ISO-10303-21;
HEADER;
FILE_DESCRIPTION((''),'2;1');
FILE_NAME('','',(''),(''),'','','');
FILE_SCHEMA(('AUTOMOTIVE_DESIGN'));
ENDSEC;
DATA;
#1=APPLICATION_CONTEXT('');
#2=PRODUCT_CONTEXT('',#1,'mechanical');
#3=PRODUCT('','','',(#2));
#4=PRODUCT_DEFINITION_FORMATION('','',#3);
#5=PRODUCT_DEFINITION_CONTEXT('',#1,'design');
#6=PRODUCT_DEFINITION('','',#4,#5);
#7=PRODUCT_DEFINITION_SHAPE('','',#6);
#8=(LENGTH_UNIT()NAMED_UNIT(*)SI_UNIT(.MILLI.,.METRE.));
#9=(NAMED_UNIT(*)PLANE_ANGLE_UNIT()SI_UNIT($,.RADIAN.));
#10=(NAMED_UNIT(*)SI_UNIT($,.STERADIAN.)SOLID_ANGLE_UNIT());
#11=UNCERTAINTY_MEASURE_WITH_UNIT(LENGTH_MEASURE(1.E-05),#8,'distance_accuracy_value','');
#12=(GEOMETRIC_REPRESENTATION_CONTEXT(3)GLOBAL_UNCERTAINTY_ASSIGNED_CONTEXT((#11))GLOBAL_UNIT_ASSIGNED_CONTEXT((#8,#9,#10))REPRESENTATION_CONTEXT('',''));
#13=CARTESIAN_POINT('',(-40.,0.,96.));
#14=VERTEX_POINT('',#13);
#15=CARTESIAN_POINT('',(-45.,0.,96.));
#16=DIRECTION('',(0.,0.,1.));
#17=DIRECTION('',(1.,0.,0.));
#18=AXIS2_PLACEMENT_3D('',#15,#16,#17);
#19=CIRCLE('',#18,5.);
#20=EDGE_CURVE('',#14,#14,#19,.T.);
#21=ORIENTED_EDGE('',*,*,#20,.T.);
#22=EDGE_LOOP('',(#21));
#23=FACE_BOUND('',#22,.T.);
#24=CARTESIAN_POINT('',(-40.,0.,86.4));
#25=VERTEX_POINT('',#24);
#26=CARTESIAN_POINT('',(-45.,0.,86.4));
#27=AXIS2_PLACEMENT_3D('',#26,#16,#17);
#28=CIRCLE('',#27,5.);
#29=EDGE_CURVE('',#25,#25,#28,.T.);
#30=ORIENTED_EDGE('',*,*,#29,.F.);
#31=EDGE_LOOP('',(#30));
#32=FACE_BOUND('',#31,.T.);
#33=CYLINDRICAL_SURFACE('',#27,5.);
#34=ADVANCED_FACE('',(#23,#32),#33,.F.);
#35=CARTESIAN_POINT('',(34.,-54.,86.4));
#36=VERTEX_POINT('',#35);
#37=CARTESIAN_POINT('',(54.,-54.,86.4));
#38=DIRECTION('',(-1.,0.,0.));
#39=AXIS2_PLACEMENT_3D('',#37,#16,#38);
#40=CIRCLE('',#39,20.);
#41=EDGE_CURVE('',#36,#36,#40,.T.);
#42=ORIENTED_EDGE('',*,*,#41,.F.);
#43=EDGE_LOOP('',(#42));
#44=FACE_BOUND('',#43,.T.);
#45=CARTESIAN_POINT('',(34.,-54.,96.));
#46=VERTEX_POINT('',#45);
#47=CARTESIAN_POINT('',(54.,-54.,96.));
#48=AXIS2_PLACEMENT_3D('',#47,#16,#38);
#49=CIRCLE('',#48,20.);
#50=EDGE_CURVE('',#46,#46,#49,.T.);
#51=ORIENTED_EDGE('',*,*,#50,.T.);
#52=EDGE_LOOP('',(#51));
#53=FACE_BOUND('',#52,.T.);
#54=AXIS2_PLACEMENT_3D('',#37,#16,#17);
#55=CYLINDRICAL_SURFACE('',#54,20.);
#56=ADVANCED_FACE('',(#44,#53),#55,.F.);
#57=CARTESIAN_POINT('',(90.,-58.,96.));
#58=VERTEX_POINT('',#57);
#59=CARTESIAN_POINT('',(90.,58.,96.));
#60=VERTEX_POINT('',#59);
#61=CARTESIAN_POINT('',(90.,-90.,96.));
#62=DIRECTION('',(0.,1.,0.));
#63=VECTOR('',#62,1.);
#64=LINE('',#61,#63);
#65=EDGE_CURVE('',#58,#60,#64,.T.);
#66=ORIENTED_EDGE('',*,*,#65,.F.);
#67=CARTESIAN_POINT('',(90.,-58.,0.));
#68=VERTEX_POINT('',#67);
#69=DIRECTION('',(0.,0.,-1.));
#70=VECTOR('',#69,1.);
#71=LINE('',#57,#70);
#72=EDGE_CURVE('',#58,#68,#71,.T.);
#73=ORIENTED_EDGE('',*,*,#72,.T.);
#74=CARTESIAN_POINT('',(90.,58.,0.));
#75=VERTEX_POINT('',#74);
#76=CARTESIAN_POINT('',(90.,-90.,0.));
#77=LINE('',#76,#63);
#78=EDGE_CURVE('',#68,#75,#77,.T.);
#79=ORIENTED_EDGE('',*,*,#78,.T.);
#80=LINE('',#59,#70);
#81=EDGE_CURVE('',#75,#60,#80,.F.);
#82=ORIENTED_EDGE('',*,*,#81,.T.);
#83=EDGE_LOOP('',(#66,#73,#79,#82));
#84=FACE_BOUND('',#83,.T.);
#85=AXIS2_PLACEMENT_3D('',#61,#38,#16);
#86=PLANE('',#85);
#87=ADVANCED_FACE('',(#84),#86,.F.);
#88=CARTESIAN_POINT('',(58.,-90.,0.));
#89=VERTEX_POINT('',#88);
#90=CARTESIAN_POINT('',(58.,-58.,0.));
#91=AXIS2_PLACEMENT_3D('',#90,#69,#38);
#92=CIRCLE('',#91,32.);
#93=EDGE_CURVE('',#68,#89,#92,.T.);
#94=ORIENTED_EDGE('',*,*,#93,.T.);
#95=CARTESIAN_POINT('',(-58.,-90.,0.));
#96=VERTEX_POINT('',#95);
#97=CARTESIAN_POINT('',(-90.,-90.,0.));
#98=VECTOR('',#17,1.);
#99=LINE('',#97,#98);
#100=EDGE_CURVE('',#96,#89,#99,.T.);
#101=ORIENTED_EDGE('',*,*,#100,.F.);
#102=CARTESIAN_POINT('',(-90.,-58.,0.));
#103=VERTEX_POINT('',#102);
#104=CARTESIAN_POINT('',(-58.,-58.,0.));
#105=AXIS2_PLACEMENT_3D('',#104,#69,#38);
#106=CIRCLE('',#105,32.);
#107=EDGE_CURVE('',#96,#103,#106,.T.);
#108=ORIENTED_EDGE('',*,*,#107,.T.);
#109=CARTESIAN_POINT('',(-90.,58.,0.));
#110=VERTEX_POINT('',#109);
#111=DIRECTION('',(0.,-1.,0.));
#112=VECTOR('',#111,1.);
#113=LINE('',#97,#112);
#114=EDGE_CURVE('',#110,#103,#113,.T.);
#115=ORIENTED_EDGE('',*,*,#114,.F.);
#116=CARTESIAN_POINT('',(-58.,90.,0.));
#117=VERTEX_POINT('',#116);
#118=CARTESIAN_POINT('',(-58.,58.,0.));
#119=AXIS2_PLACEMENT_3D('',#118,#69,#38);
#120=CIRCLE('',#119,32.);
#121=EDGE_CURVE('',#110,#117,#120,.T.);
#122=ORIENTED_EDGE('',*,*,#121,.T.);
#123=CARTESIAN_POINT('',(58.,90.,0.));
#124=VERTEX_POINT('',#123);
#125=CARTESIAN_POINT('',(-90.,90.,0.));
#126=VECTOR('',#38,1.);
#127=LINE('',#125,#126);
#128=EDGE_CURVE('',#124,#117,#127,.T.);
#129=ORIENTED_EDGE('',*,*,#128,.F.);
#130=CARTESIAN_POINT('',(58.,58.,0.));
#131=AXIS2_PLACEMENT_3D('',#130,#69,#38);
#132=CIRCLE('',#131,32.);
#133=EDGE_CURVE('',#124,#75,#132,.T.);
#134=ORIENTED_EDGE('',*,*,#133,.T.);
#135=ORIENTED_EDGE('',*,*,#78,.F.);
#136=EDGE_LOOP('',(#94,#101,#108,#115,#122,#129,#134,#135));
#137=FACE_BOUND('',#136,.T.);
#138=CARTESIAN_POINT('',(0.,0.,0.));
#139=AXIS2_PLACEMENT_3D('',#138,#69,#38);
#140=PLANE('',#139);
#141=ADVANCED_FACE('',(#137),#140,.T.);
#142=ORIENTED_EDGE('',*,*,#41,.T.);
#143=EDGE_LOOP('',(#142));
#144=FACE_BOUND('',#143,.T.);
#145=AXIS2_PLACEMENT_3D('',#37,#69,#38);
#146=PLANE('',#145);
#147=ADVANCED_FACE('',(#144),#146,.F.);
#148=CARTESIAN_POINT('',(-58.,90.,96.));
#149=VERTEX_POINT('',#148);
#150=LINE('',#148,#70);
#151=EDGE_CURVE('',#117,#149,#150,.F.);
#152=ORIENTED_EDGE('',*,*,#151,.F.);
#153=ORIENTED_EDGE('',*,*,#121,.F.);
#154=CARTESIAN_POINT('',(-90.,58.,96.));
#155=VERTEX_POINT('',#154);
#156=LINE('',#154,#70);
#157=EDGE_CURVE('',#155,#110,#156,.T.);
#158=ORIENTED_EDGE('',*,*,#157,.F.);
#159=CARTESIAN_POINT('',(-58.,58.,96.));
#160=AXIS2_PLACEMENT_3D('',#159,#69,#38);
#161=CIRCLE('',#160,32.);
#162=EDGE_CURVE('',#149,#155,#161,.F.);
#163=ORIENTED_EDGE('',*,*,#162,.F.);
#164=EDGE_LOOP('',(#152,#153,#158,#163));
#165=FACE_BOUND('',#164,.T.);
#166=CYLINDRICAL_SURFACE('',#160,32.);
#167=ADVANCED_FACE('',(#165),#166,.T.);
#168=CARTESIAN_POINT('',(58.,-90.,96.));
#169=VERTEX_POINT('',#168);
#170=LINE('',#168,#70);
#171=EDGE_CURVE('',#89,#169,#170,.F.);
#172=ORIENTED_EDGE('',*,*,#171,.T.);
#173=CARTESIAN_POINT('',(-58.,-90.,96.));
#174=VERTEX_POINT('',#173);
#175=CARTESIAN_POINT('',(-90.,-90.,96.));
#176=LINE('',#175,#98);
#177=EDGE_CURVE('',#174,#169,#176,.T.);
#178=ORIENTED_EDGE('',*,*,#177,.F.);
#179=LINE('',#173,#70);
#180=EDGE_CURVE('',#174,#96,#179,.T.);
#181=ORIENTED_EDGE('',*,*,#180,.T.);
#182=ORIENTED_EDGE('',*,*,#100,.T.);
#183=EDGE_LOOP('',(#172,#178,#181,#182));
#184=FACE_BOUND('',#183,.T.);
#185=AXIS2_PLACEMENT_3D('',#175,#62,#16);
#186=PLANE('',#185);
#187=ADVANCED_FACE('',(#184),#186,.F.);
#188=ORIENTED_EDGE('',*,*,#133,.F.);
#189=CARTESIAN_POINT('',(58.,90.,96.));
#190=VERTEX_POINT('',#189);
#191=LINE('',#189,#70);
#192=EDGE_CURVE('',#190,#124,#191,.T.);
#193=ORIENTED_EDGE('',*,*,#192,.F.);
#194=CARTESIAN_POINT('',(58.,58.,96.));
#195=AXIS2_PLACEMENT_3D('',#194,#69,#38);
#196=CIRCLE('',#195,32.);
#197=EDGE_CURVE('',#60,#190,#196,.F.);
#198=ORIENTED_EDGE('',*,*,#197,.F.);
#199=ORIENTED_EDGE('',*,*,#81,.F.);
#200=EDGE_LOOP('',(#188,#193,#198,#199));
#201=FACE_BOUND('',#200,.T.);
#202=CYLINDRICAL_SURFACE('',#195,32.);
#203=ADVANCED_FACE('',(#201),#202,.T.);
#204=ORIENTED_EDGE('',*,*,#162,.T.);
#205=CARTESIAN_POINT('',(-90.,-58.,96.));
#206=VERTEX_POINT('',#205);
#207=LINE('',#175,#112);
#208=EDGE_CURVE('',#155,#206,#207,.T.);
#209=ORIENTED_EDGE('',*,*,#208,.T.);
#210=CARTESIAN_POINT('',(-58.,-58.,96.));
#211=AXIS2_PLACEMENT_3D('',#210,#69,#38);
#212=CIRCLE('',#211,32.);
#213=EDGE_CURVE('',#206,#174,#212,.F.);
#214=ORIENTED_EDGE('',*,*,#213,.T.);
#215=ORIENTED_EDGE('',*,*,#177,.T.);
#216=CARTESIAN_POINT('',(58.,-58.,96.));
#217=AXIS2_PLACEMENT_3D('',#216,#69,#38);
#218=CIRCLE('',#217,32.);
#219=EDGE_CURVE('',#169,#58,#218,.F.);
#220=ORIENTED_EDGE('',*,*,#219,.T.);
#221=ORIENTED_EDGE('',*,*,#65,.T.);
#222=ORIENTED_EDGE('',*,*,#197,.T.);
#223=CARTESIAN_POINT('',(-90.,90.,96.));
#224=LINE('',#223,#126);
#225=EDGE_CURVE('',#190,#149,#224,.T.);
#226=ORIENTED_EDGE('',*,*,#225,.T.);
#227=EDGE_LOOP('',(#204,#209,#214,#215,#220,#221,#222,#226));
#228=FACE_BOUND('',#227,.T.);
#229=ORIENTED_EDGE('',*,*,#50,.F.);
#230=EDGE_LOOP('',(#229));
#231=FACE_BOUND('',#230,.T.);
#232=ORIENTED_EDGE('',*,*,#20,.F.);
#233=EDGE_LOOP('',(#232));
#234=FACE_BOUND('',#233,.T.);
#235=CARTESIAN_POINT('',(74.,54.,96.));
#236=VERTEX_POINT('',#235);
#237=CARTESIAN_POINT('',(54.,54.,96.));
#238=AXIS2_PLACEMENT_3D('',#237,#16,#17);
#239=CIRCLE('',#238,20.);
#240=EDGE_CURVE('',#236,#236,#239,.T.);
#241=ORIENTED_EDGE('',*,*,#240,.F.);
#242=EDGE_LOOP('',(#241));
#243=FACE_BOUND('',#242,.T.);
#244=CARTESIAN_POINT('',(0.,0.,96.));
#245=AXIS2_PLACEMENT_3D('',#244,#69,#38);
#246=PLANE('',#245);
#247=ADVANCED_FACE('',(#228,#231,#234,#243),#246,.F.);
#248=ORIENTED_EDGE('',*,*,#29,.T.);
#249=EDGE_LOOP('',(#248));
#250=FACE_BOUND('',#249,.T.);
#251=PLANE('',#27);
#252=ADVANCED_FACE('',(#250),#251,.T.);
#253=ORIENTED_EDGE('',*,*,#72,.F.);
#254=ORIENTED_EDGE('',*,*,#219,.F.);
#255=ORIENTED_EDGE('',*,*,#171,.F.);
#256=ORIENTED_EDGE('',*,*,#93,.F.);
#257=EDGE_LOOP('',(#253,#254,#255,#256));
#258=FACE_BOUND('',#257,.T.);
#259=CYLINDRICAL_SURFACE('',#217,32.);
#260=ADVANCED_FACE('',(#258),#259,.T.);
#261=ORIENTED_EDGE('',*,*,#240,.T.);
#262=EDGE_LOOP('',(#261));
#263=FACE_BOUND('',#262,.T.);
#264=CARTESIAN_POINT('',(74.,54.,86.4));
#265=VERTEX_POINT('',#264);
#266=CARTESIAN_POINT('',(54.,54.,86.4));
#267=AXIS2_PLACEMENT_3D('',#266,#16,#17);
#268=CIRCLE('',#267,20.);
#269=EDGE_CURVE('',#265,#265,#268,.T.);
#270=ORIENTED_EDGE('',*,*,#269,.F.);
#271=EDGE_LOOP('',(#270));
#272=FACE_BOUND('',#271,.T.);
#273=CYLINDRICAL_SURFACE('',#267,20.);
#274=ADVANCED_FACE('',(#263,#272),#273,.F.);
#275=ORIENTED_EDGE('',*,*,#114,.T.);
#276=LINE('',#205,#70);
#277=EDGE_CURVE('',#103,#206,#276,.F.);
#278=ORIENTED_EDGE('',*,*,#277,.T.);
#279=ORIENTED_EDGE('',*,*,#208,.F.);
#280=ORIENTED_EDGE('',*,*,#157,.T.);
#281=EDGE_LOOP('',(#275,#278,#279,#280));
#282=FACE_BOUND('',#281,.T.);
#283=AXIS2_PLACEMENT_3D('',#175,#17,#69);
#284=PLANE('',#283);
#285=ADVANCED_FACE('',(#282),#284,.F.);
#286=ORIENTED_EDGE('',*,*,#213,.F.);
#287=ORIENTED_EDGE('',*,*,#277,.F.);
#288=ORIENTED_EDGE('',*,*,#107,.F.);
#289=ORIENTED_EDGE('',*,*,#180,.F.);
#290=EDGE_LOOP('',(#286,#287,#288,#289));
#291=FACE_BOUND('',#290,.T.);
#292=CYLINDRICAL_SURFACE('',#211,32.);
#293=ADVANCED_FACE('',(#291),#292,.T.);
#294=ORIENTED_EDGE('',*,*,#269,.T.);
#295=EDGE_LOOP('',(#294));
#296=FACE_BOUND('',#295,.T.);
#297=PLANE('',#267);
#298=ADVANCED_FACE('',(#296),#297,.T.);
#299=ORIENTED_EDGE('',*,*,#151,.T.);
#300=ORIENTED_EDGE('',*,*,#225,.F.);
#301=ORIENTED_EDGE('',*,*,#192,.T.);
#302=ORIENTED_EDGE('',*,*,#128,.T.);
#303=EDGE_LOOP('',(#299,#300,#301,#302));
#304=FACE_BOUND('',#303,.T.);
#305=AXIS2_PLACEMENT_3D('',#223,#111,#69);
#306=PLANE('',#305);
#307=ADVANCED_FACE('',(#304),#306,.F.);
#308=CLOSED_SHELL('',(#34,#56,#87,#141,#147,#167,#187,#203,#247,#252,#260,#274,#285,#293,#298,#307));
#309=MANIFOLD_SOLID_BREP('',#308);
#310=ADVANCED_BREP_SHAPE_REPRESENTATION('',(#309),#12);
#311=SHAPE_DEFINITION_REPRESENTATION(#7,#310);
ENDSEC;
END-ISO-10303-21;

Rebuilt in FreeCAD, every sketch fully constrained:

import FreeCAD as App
import Part
import Sketcher
Q = App.Units.Quantity


def edges_at(feature, points):
    """Names of the edges that pass closest to the given points."""
    edges = feature.Shape.Edges
    near = lambda p: min(range(len(edges)), key=lambda i: edges[i].distToShape(Part.Vertex(*p))[0])
    return sorted({f"Edge{near(p) + 1}" for p in points})


def add_polygon(sketch, points):
    """Adds a closed chain of lines whose ends are joined by coincident constraints."""
    first, n = sketch.GeometryCount, len(points)
    for a, b in zip(points, points[1:] + points[:1]):
        sketch.addGeometry(Part.LineSegment(App.Vector(*a, 0), App.Vector(*b, 0)), False)
    for i in range(n):
        sketch.addConstraint(Sketcher.Constraint("Coincident", first + i, 2, first + (i + 1) % n, 1))

doc = App.newDocument("Part")
params = doc.addObject("Spreadsheet::Sheet", "Params")
for row, (alias, value) in enumerate([
    ("sketch1_width", "180 mm"),
    ("pad1_length", "96 mm"),
    ("fillet_radius", "32 mm"),
    ("sketch2_diameter", "40 mm"),
    ("sketch2_diameter2", "10 mm"),
    ("pocket1_length", "9.6 mm"),
], start=1):
    params.set(f"A{row}", alias)
    params.set(f"B{row}", "=" + value)
    params.setAlias(f"B{row}", alias)

body = doc.addObject("PartDesign::Body", "Body")

sketch1 = doc.addObject("Sketcher::SketchObject", "Sketch")
body.addObject(sketch1)
sketch1.AttachmentSupport = (doc.XY_Plane, [""])
sketch1.MapMode = "FlatFace"
add_polygon(sketch1, [(-90, 90), (-90, -90), (90, -90), (90, 90)])
sketch1.addConstraint(Sketcher.Constraint("Vertical", 0))
sketch1.addConstraint(Sketcher.Constraint("Horizontal", 1))
sketch1.addConstraint(Sketcher.Constraint("Vertical", 2))
sketch1.addConstraint(Sketcher.Constraint("Horizontal", 3))
sketch1.addConstraint(Sketcher.Constraint("Symmetric", 0, 2, 2, 2, -1, 1))
sketch1.addConstraint(Sketcher.Constraint("Equal", 3, 0))
sketch1.addConstraint(Sketcher.Constraint("DistanceX", 1, 1, 1, 2, Q("180 mm")))
sketch1.setExpression("Constraints[10]", "Params.sketch1_width")
pad1 = doc.addObject("PartDesign::Pad", "Pad")
body.addObject(pad1)
pad1.Profile = sketch1
pad1.setExpression("Length", "Params.pad1_length")
doc.recompute()

fillet = doc.addObject("PartDesign::Fillet", "Fillet")
body.addObject(fillet)
fillet.Base = (pad1, edges_at(pad1, [
    (90, -90, 48),
    (-90, -90, 48),
    (-90, 90, 48),
    (90, 90, 48),
]))
fillet.setExpression("Radius", "Params.fillet_radius")

sketch2 = doc.addObject("Sketcher::SketchObject", "Sketch001")
body.addObject(sketch2)
sketch2.AttachmentSupport = (doc.XY_Plane, [""])
sketch2.MapMode = "FlatFace"
sketch2.AttachmentOffset = App.Placement(App.Vector(0, 0, 96), App.Rotation())
sketch2.addGeometry(Part.Circle(App.Vector(54, 54, 0), App.Vector(0, 0, 1), 20), False)
sketch2.addGeometry(Part.Circle(App.Vector(54, -54, 0), App.Vector(0, 0, 1), 20), False)
sketch2.addGeometry(Part.Circle(App.Vector(-45, 0, 0), App.Vector(0, 0, 1), 5), False)
sketch2.addConstraint(Sketcher.Constraint("Equal", 0, 1))
sketch2.addConstraint(Sketcher.Constraint("Symmetric", 0, 3, 1, 3, -1))
sketch2.addConstraint(Sketcher.Constraint("PointOnObject", 2, 3, -1))
sketch2.addConstraint(Sketcher.Constraint("Diameter", 0, Q("40 mm")))
sketch2.addConstraint(Sketcher.Constraint("Diameter", 2, Q("10 mm")))
sketch2.addConstraint(Sketcher.Constraint("DistanceX", -1, 1, 0, 3, Q("54 mm")))
sketch2.addConstraint(Sketcher.Constraint("DistanceY", -1, 1, 0, 3, Q("54 mm")))
sketch2.addConstraint(Sketcher.Constraint("DistanceX", 2, 3, -1, 1, Q("45 mm")))
sketch2.setExpression("Constraints[3]", "Params.sketch2_diameter")
sketch2.setExpression("Constraints[4]", "Params.sketch2_diameter2")
pocket1 = doc.addObject("PartDesign::Pocket", "Pocket")
body.addObject(pocket1)
pocket1.Profile = sketch2
pocket1.setExpression("Length", "Params.pocket1_length")

doc.recompute()
